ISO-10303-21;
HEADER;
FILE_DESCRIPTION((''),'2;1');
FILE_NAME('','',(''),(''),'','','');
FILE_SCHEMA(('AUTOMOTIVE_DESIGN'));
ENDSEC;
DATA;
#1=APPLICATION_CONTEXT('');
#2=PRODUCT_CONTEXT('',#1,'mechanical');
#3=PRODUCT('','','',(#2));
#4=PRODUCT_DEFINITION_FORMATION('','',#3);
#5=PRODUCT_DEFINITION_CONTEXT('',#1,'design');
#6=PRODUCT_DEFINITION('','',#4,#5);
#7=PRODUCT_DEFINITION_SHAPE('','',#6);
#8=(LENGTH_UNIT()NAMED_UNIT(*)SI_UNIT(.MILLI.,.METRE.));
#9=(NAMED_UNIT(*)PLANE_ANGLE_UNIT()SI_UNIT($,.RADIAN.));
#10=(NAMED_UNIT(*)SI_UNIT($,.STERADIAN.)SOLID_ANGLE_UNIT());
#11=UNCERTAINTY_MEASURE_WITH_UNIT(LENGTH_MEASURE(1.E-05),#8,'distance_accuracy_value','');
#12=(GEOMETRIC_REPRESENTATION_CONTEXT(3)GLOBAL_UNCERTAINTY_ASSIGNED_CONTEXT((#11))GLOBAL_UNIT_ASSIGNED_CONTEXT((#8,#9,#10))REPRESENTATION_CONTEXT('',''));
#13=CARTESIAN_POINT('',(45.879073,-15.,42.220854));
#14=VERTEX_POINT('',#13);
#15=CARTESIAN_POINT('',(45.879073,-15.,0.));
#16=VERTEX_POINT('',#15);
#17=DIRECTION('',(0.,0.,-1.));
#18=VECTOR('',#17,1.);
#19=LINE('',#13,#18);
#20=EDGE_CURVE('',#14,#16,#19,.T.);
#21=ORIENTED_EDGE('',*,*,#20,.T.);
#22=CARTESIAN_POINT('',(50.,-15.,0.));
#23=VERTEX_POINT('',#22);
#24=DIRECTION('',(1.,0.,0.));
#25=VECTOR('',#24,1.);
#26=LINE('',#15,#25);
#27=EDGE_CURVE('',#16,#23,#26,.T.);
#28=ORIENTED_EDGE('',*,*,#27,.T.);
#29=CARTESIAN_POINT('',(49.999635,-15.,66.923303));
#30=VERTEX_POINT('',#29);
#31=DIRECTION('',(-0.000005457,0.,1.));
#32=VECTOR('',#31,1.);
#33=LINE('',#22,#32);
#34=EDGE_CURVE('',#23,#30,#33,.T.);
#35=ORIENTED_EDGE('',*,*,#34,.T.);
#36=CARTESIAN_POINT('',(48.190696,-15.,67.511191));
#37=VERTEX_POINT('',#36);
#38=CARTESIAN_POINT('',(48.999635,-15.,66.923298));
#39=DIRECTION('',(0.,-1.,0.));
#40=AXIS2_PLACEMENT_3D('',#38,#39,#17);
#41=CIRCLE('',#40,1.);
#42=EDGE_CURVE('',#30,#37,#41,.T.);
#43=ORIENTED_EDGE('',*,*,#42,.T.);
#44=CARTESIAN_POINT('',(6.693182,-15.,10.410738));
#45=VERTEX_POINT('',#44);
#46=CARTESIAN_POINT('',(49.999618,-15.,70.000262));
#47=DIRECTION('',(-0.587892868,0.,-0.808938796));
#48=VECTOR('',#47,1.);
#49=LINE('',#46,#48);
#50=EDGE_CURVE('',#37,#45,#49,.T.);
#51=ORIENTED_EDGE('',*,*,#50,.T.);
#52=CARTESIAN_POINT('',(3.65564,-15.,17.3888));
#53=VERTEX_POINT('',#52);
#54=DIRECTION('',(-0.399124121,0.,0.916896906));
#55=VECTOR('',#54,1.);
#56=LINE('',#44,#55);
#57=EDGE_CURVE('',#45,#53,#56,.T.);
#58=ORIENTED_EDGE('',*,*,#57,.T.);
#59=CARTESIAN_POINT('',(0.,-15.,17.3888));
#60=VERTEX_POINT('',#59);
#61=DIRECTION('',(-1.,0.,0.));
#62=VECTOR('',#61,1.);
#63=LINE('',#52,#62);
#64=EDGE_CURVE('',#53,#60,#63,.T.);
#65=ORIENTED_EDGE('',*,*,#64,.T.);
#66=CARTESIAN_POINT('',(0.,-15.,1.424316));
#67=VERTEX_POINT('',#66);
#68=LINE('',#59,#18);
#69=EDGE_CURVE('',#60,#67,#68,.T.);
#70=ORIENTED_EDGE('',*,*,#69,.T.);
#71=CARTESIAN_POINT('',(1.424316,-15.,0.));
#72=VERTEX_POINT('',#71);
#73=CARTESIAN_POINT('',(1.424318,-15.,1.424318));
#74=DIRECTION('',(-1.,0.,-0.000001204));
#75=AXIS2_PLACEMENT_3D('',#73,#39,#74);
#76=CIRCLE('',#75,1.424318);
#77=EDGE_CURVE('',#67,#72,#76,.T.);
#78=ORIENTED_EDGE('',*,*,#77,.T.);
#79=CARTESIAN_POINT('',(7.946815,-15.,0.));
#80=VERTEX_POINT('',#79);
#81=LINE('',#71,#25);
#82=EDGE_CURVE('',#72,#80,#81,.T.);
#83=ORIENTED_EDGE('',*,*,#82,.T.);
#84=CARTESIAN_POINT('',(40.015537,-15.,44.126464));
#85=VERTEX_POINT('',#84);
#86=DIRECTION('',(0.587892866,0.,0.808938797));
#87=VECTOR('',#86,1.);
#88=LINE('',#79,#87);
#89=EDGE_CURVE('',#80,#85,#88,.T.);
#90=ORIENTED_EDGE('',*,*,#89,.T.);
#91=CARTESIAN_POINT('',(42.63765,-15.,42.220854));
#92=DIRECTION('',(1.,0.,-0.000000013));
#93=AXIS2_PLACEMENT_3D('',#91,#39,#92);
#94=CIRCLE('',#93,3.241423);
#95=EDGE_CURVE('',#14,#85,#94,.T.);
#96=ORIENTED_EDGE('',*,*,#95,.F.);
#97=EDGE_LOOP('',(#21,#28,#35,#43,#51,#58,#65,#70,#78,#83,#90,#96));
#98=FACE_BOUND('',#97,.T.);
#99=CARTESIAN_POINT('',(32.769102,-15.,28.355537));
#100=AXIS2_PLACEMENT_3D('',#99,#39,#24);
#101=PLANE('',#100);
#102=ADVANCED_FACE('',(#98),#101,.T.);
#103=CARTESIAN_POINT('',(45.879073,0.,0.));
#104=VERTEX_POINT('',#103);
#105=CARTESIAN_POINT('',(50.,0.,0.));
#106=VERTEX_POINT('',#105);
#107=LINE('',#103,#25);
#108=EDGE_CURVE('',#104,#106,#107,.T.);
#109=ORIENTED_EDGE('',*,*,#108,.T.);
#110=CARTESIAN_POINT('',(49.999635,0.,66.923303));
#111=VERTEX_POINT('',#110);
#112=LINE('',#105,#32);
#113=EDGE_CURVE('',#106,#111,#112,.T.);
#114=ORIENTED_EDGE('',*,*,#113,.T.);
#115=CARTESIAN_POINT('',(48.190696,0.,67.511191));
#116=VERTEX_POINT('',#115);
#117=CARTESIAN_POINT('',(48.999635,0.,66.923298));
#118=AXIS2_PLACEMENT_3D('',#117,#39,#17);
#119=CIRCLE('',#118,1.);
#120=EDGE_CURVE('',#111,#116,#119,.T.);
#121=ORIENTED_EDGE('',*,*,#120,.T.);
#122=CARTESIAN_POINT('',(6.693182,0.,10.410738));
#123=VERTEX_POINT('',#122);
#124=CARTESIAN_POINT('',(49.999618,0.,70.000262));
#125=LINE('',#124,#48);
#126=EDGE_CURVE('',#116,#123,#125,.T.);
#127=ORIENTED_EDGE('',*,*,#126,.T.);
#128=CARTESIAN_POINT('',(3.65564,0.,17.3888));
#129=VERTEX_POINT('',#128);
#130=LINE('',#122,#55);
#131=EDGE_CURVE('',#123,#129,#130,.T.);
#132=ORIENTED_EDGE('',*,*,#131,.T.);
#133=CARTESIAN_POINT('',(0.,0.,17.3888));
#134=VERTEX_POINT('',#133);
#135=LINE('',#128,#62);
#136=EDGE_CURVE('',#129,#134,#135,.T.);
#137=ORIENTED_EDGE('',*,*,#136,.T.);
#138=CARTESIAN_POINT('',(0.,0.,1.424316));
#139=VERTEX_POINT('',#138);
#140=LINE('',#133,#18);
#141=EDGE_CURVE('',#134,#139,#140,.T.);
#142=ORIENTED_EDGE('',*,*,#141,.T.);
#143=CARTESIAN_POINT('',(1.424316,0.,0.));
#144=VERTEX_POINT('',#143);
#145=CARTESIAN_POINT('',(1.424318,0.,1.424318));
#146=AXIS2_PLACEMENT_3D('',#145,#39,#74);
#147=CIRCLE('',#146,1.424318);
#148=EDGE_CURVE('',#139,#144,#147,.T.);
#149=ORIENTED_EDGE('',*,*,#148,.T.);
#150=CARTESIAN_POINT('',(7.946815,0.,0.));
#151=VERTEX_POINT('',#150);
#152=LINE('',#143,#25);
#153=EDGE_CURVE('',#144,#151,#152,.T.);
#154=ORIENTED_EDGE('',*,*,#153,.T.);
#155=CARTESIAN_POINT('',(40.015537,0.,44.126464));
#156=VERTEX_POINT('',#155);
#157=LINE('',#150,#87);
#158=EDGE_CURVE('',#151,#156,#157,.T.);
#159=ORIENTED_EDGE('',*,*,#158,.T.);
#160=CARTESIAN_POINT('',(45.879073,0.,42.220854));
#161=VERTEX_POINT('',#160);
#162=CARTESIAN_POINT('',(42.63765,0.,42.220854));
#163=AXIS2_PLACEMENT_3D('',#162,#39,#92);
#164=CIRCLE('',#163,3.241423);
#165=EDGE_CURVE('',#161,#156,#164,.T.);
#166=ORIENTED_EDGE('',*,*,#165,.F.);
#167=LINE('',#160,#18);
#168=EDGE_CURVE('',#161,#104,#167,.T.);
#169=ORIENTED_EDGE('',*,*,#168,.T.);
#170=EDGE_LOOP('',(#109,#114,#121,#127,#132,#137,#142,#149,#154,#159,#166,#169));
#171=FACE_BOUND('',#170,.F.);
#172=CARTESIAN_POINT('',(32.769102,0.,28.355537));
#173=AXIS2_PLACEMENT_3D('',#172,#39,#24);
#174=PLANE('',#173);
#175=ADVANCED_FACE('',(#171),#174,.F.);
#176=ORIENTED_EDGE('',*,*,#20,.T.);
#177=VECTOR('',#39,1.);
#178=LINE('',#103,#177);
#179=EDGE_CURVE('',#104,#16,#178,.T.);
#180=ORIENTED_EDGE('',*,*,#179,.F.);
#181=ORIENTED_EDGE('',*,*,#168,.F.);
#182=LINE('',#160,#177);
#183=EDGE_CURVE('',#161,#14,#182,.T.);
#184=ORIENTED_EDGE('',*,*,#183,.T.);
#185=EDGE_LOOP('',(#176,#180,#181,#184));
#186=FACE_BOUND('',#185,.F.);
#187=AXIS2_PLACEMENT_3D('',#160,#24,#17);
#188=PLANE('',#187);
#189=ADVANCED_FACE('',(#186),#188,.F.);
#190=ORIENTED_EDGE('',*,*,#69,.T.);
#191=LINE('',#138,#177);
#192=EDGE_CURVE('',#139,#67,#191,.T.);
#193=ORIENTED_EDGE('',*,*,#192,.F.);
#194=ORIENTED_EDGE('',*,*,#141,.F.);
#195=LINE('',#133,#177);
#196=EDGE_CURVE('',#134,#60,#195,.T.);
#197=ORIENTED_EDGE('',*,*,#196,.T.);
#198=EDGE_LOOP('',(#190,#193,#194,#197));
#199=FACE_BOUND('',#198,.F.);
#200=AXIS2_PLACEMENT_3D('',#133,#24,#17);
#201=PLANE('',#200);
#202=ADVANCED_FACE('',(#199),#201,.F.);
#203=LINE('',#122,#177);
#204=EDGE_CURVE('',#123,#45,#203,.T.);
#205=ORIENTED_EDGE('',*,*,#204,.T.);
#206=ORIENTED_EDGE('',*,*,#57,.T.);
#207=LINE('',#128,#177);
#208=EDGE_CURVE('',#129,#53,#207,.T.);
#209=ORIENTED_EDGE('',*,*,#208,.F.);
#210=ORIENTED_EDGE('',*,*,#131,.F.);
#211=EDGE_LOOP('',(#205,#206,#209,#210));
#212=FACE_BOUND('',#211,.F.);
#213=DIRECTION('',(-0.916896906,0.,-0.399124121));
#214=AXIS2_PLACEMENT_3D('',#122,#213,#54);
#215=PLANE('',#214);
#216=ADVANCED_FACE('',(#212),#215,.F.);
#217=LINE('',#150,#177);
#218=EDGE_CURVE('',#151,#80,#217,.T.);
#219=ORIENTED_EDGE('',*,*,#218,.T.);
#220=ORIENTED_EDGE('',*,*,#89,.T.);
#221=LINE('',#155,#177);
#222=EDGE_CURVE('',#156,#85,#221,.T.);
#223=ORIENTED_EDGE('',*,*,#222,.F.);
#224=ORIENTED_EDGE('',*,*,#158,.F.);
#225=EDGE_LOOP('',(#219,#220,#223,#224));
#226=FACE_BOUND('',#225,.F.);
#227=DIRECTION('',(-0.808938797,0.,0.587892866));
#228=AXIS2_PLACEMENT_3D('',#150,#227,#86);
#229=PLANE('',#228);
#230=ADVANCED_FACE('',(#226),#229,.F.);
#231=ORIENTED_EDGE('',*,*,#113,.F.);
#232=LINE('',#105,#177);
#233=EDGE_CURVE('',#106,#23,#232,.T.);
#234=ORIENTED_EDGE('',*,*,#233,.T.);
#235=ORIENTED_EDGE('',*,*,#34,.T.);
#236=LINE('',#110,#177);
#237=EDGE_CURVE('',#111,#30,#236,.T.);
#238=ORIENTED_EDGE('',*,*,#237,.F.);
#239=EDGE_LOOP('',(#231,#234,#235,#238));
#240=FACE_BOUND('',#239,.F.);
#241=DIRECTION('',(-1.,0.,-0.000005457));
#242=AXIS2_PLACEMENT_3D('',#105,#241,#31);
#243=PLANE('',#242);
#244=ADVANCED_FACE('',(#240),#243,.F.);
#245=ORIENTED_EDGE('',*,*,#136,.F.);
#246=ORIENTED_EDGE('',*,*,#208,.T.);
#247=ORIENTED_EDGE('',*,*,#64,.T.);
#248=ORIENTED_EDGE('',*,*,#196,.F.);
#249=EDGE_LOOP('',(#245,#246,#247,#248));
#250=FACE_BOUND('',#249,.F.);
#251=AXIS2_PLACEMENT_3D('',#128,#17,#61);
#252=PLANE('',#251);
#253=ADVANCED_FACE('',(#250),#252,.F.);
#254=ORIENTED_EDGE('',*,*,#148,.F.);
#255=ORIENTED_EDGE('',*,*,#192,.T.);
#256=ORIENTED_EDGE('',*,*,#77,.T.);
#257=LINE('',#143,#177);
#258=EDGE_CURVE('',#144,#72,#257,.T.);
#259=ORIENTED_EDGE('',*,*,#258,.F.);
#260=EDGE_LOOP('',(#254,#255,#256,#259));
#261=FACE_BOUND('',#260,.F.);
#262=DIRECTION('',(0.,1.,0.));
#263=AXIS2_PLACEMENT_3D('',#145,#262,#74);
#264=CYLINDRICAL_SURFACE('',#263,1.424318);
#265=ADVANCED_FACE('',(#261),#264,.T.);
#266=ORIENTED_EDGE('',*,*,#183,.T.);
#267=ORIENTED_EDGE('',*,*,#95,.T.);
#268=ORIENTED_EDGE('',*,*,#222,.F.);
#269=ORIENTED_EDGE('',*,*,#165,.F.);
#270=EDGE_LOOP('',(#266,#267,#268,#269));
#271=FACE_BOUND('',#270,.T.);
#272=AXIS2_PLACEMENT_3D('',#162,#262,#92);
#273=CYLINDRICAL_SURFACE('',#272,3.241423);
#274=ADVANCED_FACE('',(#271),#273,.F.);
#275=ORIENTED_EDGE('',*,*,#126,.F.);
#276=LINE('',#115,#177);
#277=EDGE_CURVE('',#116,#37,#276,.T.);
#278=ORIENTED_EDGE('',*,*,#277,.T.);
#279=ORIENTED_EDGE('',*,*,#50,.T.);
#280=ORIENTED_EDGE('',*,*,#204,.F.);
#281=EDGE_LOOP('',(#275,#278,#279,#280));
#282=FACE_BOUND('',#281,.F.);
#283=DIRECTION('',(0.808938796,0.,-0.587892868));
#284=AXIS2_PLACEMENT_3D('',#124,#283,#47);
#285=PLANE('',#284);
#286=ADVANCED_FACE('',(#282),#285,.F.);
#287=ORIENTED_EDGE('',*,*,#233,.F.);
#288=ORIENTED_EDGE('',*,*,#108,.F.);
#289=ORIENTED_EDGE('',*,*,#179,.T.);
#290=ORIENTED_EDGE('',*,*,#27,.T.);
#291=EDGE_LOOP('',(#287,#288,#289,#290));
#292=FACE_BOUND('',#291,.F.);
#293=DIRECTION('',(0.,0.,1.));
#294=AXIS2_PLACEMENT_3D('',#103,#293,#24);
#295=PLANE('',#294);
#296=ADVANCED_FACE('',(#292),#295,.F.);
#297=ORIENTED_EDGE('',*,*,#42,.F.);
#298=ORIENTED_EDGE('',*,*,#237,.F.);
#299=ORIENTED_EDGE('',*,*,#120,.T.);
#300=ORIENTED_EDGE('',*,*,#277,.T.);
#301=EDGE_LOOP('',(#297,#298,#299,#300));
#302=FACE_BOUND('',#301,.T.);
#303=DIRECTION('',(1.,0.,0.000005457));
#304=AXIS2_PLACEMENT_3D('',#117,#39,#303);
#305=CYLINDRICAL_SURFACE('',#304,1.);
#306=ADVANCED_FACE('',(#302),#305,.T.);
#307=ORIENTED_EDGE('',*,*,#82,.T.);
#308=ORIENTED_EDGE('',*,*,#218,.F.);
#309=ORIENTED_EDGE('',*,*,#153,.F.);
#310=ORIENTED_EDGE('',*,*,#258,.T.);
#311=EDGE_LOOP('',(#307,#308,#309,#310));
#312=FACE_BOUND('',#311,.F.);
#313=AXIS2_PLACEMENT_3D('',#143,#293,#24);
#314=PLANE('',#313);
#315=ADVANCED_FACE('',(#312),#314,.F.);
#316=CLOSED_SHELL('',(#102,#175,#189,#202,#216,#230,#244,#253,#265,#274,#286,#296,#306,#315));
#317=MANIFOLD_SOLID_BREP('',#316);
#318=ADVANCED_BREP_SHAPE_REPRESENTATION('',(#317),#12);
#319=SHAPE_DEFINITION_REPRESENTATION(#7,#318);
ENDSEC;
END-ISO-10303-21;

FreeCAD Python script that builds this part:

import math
import FreeCAD as App
import Part
import Sketcher
Q = App.Units.Quantity


def edges_at(feature, points):
    """Names of the edges that pass closest to the given points."""
    edges = feature.Shape.Edges
    near = lambda p: min(range(len(edges)), key=lambda i: edges[i].distToShape(Part.Vertex(*p))[0])
    return sorted({f"Edge{near(p) + 1}" for p in points})

doc = App.newDocument("Part")
body = doc.addObject("PartDesign::Body", "Body")

sketch1 = doc.addObject("Sketcher::SketchObject", "Sketch")
body.addObject(sketch1)
sketch1.AttachmentSupport = (doc.XZ_Plane, [""])
sketch1.MapMode = "FlatFace"
sketch1.addGeometry([
    Part.LineSegment(App.Vector(50, 0, 0), App.Vector(50, 70, 0)),
    Part.LineSegment(App.Vector(50, 70, 0), App.Vector(6.7, 10.4, 0)),
    Part.LineSegment(App.Vector(6.7, 10.4, 0), App.Vector(3.7, 17.4, 0)),
    Part.LineSegment(App.Vector(3.7, 17.4, 0), App.Vector(0, 17.4, 0)),
    Part.LineSegment(App.Vector(0, 17.4, 0), App.Vector(0, 1.4, 0)),
    Part.ArcOfCircle(Part.Circle(App.Vector(1.4, 1.4, 0), App.Vector(0, 0, 1), 1.4), math.radians(-180), math.radians(-90)),
    Part.LineSegment(App.Vector(1.4, 0, 0), App.Vector(7.9, 0, 0)),
    Part.LineSegment(App.Vector(7.9, 0, 0), App.Vector(40, 44.1, 0)),
    Part.ArcOfCircle(Part.Circle(App.Vector(42.6, 42.2, 0), App.Vector(0, 0, 1), 3.2), math.radians(0), math.radians(144)),
    Part.LineSegment(App.Vector(45.9, 42.2, 0), App.Vector(45.9, 0, 0)),
    Part.LineSegment(App.Vector(45.9, 0, 0), App.Vector(50, 0, 0)),
], False)
sketch1.addConstraint([
    Sketcher.Constraint("Coincident", 0, 2, 1, 1),
    Sketcher.Constraint("Coincident", 1, 2, 2, 1),
    Sketcher.Constraint("Coincident", 2, 2, 3, 1),
    Sketcher.Constraint("Coincident", 3, 2, 4, 1),
    Sketcher.Constraint("Tangent", 4, 2, 5, 1),
    Sketcher.Constraint("Tangent", 5, 2, 6, 1),
    Sketcher.Constraint("Coincident", 6, 2, 7, 1),
    Sketcher.Constraint("Tangent", 7, 2, 8, 2),
    Sketcher.Constraint("Tangent", 8, 1, 9, 1),
    Sketcher.Constraint("Coincident", 9, 2, 10, 1),
    Sketcher.Constraint("Coincident", 10, 2, 0, 1),
    Sketcher.Constraint("Horizontal", 3),
    Sketcher.Constraint("Vertical", 4),
    Sketcher.Constraint("Horizontal", 6),
    Sketcher.Constraint("Vertical", 9),
    Sketcher.Constraint("Horizontal", 10),
    Sketcher.Constraint("PointOnObject", 3, 2, -2),
    Sketcher.Constraint("PointOnObject", 5, 2, -1),
    Sketcher.Constraint("PointOnObject", 9, 2, -1),
    Sketcher.Constraint("Parallel", 1, 7),
    Sketcher.Constraint("DistanceX", -1, 1, 10, 2, Q("50 mm")),
    Sketcher.Constraint("DistanceX", 6, 1, 6, 2, Q("6.522499 mm")),
    Sketcher.Constraint("Radius", 5, Q("1.424318 mm")),
    Sketcher.Constraint("Radius", 8, Q("3.241423 mm")),
    Sketcher.Constraint("DistanceX", 3, 2, 3, 1, Q("3.65564 mm")),
    Sketcher.Constraint("DistanceY", -1, 1, 2, 2, Q("17.3888 mm")),
    Sketcher.Constraint("DistanceX", 5, 3, 0, 2, Q("48.5753 mm")),
    Sketcher.Constraint("DistanceY", 7, 2, 0, 2, Q("25.873798 mm")),
    Sketcher.Constraint("Distance", 2, Q("7.61052 mm")),
    Sketcher.Constraint("Distance", 7, Q("54.548582 mm")),
    Sketcher.Constraint("DistanceX", 10, 1, 10, 2, Q("4.120927 mm")),
])
pad1 = doc.addObject("PartDesign::Pad", "Pad")
body.addObject(pad1)
pad1.Profile = sketch1
pad1.Length = 15
doc.recompute()

fillet = doc.addObject("PartDesign::Fillet", "Fillet")
body.addObject(fillet)
fillet.Base = (pad1, edges_at(pad1, [(50, -7.5, 70)]))
fillet.Radius = 1

doc.recompute()
